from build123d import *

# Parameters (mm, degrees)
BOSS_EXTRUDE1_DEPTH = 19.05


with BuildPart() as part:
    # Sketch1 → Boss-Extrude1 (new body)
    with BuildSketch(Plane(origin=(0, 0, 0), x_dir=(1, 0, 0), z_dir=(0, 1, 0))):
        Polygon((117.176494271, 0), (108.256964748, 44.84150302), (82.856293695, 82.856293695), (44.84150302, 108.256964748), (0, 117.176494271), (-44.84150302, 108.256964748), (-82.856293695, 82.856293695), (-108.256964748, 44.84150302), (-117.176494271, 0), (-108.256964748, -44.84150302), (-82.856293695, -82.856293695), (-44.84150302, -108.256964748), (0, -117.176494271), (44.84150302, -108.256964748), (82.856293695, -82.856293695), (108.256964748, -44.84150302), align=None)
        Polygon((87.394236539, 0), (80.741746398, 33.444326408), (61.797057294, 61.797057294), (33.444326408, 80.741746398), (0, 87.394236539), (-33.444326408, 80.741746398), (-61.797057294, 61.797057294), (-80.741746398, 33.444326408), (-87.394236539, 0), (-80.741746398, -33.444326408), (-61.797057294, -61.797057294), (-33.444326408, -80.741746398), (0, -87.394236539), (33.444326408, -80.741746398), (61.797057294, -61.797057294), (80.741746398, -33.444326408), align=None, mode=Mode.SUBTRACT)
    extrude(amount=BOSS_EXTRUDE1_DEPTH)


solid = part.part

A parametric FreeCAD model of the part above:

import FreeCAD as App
import Part
import Sketcher
Q = App.Units.Quantity


def add_polygon(sketch, points):
    """Adds a closed chain of lines whose ends are joined by coincident constraints."""
    first, n = sketch.GeometryCount, len(points)
    for a, b in zip(points, points[1:] + points[:1]):
        sketch.addGeometry(Part.LineSegment(App.Vector(*a, 0), App.Vector(*b, 0)), False)
    for i in range(n):
        sketch.addConstraint(Sketcher.Constraint("Coincident", first + i, 2, first + (i + 1) % n, 1))

doc = App.newDocument("Part")
body = doc.addObject("PartDesign::Body", "Body")

sketch1 = body.newObject("Sketcher::SketchObject", "Sketch")
sketch1.AttachmentSupport = (doc.getObject("XZ_Plane"), [""])
sketch1.MapMode = "FlatFace"
add_polygon(sketch1, [(117.176494, 0), (108.256965, -44.841503), (82.856294, -82.856294), (44.841503, -108.256965), (0, -117.176494), (-44.841503, -108.256965), (-82.856294, -82.856294), (-108.256965, -44.841503), (-117.176494, 0), (-108.256965, 44.841503), (-82.856294, 82.856294), (-44.841503, 108.256965), (0, 117.176494), (44.841503, 108.256965), (82.856294, 82.856294), (108.256965, 44.841503)])
add_polygon(sketch1, [(80.741746, -33.444326), (87.394237, 0), (80.741746, 33.444326), (61.797057, 61.797057), (33.444326, 80.741746), (0, 87.394237), (-33.444326, 80.741746), (-61.797057, 61.797057), (-80.741746, 33.444326), (-87.394237, 0), (-80.741746, -33.444326), (-61.797057, -61.797057), (-33.444326, -80.741746), (0, -87.394237), (33.444326, -80.741746), (61.797057, -61.797057)])
sketch1.addConstraint(Sketcher.Constraint("Symmetric", 0, 2, 8, 2, -1, 1))
sketch1.addConstraint(Sketcher.Constraint("Symmetric", 1, 2, 9, 2, -1, 1))
sketch1.addConstraint(Sketcher.Constraint("Symmetric", 2, 2, 10, 2, -1, 1))
sketch1.addConstraint(Sketcher.Constraint("Symmetric", 3, 2, 11, 2, -1, 1))
sketch1.addConstraint(Sketcher.Constraint("Symmetric", 4, 2, 12, 2, -1, 1))
sketch1.addConstraint(Sketcher.Constraint("Symmetric", 5, 2, 13, 2, -1, 1))
sketch1.addConstraint(Sketcher.Constraint("Symmetric", 6, 2, 14, 2, -1, 1))
sketch1.addConstraint(Sketcher.Constraint("Symmetric", 7, 2, 15, 2, -1, 1))
sketch1.addConstraint(Sketcher.Constraint("Symmetric", 16, 2, 24, 2, -1, 1))
sketch1.addConstraint(Sketcher.Constraint("Symmetric", 17, 2, 25, 2, -1, 1))
sketch1.addConstraint(Sketcher.Constraint("Symmetric", 18, 2, 26, 2, -1, 1))
sketch1.addConstraint(Sketcher.Constraint("Symmetric", 19, 2, 27, 2, -1, 1))
sketch1.addConstraint(Sketcher.Constraint("Symmetric", 20, 2, 28, 2, -1, 1))
sketch1.addConstraint(Sketcher.Constraint("Symmetric", 21, 2, 29, 2, -1, 1))
sketch1.addConstraint(Sketcher.Constraint("Symmetric", 22, 2, 30, 2, -1, 1))
sketch1.addConstraint(Sketcher.Constraint("Symmetric", 23, 2, 31, 2, -1, 1))
sketch1.addConstraint(Sketcher.Constraint("Symmetric", 2, 2, 4, 2, -2))
sketch1.addConstraint(Sketcher.Constraint("Symmetric", 1, 2, 5, 2, -2))
sketch1.addConstraint(Sketcher.Constraint("Symmetric", 0, 2, 6, 2, -2))
sketch1.addConstraint(Sketcher.Constraint("Symmetric", 19, 2, 21, 2, -2))
sketch1.addConstraint(Sketcher.Constraint("Symmetric", 18, 2, 22, 2, -2))
sketch1.addConstraint(Sketcher.Constraint("Symmetric", 17, 2, 23, 2, -2))
sketch1.addConstraint(Sketcher.Constraint("PointOnObject", 3, 2, -2))
sketch1.addConstraint(Sketcher.Constraint("PointOnObject", 7, 2, -1))
sketch1.addConstraint(Sketcher.Constraint("PointOnObject", 16, 2, -1))
sketch1.addConstraint(Sketcher.Constraint("PointOnObject", 20, 2, -2))
sketch1.addConstraint(Sketcher.Constraint("Perpendicular", 0, 4))
sketch1.addConstraint(Sketcher.Constraint("Perpendicular", 1, 5))
sketch1.addConstraint(Sketcher.Constraint("Perpendicular", 12, 16))
sketch1.addConstraint(Sketcher.Constraint("Parallel", 14, 18))
sketch1.addConstraint(Sketcher.Constraint("Parallel", 13, 19))
sketch1.addConstraint(Sketcher.Constraint("Perpendicular", 16, 20))
sketch1.addConstraint(Sketcher.Constraint("Equal", 0, 1))
sketch1.addConstraint(Sketcher.Constraint("Equal", 1, 2))
sketch1.addConstraint(Sketcher.Constraint("Equal", 2, 3))
sketch1.addConstraint(Sketcher.Constraint("Equal", 17, 18))
sketch1.addConstraint(Sketcher.Constraint("Equal", 18, 19))
sketch1.addConstraint(Sketcher.Constraint("Equal", 19, 20))
sketch1.addConstraint(Sketcher.Constraint("Distance", 0, Q("1.8 in")))
sketch1.addConstraint(Sketcher.Constraint("Angle", 0, Q("-101.25 deg")))
sketch1.addConstraint(Sketcher.Constraint("Angle", 1, Q("-123.75 deg")))
sketch1.addConstraint(Sketcher.Constraint("Distance", 16, Q("34.099539 mm")))
pad1 = body.newObject("PartDesign::Pad", "Pad")
pad1.Profile = sketch1
pad1.Length = Q("0.75 in")
pad1.Reversed = True

doc.recompute()
